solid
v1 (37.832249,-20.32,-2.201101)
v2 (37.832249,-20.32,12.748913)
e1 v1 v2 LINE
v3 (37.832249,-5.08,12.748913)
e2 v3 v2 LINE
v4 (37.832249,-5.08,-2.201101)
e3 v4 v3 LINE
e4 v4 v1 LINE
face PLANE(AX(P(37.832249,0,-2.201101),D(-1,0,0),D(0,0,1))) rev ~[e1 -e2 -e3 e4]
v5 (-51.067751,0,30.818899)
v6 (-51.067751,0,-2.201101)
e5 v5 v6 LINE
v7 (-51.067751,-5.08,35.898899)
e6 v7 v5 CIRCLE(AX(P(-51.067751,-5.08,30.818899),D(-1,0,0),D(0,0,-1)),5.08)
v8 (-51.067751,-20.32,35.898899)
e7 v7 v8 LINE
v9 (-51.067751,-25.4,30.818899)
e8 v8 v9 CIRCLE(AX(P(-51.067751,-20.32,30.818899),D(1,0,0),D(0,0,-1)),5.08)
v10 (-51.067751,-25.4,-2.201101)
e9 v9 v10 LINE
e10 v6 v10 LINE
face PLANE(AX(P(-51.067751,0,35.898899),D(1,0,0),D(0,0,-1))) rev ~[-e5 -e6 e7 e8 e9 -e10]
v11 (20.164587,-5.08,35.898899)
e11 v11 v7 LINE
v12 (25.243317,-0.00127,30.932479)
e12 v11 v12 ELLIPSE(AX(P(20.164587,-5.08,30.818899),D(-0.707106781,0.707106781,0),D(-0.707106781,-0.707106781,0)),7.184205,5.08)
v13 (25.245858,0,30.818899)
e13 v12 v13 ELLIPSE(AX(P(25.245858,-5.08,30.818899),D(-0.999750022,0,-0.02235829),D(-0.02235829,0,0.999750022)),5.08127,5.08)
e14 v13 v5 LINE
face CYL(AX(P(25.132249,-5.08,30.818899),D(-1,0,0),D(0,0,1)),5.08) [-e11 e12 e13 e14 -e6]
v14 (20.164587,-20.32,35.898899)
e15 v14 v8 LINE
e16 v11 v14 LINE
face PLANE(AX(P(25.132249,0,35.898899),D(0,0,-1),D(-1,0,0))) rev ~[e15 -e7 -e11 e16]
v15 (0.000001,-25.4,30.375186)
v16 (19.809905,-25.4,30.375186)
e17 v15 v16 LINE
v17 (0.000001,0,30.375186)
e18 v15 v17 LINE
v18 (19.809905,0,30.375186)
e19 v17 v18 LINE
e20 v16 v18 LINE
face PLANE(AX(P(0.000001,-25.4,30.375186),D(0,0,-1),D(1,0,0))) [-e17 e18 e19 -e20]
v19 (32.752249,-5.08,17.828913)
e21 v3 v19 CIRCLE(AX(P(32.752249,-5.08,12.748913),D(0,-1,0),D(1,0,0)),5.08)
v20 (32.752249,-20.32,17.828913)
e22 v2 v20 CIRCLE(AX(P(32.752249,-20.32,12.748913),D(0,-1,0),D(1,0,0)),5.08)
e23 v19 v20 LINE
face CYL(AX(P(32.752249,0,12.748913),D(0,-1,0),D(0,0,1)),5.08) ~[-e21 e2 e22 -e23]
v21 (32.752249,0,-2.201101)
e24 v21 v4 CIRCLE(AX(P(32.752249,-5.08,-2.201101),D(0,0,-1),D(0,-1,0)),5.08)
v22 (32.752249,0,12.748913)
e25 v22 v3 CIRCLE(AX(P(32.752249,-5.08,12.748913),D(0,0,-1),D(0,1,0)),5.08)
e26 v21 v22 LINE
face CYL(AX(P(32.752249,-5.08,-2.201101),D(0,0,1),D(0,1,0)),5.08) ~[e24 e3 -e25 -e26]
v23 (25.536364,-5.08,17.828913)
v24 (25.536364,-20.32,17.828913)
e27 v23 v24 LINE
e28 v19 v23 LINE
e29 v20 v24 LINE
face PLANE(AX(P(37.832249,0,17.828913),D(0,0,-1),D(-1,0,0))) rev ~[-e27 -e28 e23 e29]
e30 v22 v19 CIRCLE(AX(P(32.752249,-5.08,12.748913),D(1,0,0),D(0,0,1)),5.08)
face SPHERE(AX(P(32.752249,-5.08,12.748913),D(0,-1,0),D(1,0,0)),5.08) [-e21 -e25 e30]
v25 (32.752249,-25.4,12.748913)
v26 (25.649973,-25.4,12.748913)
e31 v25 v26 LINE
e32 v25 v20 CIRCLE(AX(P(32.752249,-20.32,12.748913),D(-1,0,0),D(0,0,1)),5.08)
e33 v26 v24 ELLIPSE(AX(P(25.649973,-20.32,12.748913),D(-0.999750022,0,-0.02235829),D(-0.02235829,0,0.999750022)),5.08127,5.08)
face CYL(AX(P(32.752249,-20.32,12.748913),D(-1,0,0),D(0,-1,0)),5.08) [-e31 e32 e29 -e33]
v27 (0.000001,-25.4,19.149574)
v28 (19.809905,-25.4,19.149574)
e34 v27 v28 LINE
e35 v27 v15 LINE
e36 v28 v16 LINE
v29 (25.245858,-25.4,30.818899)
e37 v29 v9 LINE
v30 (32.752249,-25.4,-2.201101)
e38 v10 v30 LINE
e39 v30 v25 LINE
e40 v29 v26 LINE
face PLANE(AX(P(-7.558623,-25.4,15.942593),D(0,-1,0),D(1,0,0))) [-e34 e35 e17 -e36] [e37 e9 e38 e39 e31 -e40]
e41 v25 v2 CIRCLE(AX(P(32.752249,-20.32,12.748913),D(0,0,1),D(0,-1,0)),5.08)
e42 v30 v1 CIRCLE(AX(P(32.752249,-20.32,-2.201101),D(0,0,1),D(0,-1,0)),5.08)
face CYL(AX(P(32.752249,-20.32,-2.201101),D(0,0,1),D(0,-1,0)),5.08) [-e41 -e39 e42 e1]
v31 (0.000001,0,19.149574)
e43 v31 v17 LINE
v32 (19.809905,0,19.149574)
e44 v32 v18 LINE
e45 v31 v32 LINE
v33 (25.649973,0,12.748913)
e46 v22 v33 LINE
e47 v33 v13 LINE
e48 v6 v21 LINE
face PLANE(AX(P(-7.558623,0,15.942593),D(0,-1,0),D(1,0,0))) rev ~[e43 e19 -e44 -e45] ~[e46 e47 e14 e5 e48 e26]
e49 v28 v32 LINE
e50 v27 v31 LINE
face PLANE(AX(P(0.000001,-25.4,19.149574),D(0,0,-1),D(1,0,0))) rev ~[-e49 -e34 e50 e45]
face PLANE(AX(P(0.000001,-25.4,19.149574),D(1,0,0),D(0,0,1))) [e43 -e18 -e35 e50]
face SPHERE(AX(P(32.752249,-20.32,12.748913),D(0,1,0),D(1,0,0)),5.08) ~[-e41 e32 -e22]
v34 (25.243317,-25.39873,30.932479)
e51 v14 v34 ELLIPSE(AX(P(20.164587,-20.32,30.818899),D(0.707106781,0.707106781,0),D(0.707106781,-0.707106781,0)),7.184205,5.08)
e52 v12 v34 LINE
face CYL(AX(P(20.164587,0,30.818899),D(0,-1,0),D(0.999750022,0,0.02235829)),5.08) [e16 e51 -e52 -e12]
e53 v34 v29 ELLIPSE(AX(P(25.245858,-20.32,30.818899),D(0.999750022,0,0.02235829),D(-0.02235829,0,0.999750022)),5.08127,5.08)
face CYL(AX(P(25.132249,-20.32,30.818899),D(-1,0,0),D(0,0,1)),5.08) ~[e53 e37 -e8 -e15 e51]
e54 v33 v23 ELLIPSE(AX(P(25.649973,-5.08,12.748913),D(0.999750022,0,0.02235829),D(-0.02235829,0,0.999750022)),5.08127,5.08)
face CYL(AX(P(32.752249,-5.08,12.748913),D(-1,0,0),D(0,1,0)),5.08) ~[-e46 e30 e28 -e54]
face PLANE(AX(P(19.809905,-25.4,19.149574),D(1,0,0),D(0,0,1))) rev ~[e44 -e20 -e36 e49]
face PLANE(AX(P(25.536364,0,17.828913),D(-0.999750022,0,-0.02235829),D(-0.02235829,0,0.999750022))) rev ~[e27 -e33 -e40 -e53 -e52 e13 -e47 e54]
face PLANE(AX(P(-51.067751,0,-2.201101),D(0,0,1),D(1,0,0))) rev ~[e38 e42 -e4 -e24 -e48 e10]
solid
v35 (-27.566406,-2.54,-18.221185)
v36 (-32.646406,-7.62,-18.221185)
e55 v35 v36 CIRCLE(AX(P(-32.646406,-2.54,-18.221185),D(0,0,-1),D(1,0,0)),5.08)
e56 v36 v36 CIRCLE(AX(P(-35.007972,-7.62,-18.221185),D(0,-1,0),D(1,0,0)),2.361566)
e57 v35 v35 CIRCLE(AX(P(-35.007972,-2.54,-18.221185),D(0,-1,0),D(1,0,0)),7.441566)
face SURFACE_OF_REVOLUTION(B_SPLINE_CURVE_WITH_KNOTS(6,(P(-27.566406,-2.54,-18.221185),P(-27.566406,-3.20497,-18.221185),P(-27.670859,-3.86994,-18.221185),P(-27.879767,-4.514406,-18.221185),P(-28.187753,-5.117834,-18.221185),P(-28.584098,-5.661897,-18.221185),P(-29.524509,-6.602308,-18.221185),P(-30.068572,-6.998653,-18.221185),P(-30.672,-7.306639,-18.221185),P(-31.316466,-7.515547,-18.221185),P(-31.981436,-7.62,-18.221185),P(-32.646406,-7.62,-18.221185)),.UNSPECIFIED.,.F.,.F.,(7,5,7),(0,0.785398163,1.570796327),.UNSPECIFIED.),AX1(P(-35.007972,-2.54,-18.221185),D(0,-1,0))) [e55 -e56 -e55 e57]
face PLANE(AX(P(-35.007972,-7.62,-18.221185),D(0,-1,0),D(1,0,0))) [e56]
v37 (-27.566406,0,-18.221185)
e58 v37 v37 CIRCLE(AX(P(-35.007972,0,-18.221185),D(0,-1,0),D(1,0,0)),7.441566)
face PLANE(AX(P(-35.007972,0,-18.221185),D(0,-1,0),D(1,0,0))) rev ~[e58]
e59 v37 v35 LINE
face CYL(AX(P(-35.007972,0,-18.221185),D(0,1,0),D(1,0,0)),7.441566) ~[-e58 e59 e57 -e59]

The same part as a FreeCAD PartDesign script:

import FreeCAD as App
import Part
import Sketcher
from FreeCAD import Vector
Q = App.Units.Quantity


def edges_at(feature, points):
    """Names of the edges that pass closest to the given points."""
    edges = feature.Shape.Edges
    near = lambda p: min(range(len(edges)), key=lambda i: edges[i].distToShape(Part.Vertex(*p))[0])
    return sorted({f"Edge{near(p) + 1}" for p in points})


def add_polygon(sketch, points):
    """Adds a closed chain of lines whose ends are joined by coincident constraints."""
    first, n = sketch.GeometryCount, len(points)
    for a, b in zip(points, points[1:] + points[:1]):
        sketch.addGeometry(Part.LineSegment(App.Vector(*a, 0), App.Vector(*b, 0)), False)
    for i in range(n):
        sketch.addConstraint(Sketcher.Constraint("Coincident", first + i, 2, first + (i + 1) % n, 1))

doc = App.newDocument("Part")
body = doc.addObject("PartDesign::Body", "Body")

# Sketch on XZ plane
sketch1 = body.newObject("Sketcher::SketchObject", "Sketch")
sketch1.AttachmentSupport = (doc.getObject("XZ_Plane"), [""])
sketch1.MapMode = "FlatFace"
add_polygon(sketch1, [(26, 18), (25, 36), (-51, 36), (-51, -2), (38, -2), (38, 18)])  # lines 0-5
sketch1.addConstraint([
    Sketcher.Constraint("Horizontal", 1),
    Sketcher.Constraint("Vertical", 2),
    Sketcher.Constraint("Horizontal", 3),
    Sketcher.Constraint("Vertical", 4),
    Sketcher.Constraint("Horizontal", 5),
    Sketcher.Constraint("DistanceX", 1, 2, 1, 1, Q("3 in")),
    Sketcher.Constraint("DistanceX", 3, 1, 3, 2, Q("3.5 in")),
    Sketcher.Constraint("DistanceY", 2, 2, 2, 1, Q("1.5 in")),
    Sketcher.Constraint("DistanceY", -1, 1, 0, 2, Q("35.898899 mm")),
    Sketcher.Constraint("DistanceX", 5, 2, 5, 1, Q("12.295885 mm")),
    Sketcher.Constraint("DistanceY", 4, 1, 4, 2, Q("20.030014 mm")),
    Sketcher.Constraint("DistanceX", -1, 1, 0, 2, Q("25.132249 mm")),
])
pad1 = body.newObject("PartDesign::Pad", "Pad")
pad1.Profile = sketch1
pad1.Length = Q("1 in")

# Sketch on XZ plane
sketch2 = body.newObject("Sketcher::SketchObject", "Sketch001")
sketch2.AttachmentSupport = (doc.getObject("XZ_Plane"), [""])
sketch2.MapMode = "FlatFace"
sketch2.AttachmentOffset = App.Placement(Vector(0, 0, 1 * 25.4), App.Rotation())
add_polygon(sketch2, [(0, 30), (0, 19), (20, 19), (20, 30)])  # lines 0-3
sketch2.addConstraint([
    Sketcher.Constraint("Vertical", 0),
    Sketcher.Constraint("Horizontal", 1),
    Sketcher.Constraint("Vertical", 2),
    Sketcher.Constraint("Horizontal", 3),
    Sketcher.Constraint("PointOnObject", 0, 2, -2),
    Sketcher.Constraint("DistanceY", 0, 2, 0, 1, Q("11.225612 mm")),
    Sketcher.Constraint("DistanceX", 1, 1, 1, 2, Q("19.809905 mm")),
    Sketcher.Constraint("DistanceY", -1, 1, 0, 2, Q("19.149574 mm")),
])
pocket1 = body.newObject("PartDesign::Pocket", "Pocket")
pocket1.Profile = sketch2
pocket1.Length = Q("1 in")
doc.recompute()

fillet = body.newObject("PartDesign::Fillet", "Fillet")
fillet.Base = (pocket1, edges_at(pocket1, [
    (37.832, -12.7, 17.829),
    (-12.968, 0, 35.899),
    (25.132, -12.7, 35.899),
    (-12.968, -25.4, 35.899),
]))
fillet.Radius = Q("0.2 in")
doc.recompute()

fillet2 = body.newObject("PartDesign::Fillet", "Fillet001")
fillet2.Base = (fillet, edges_at(fillet, [(37.832, 0, 5.274), (37.832, -25.4, 5.274)]))
fillet2.Radius = Q("0.2 in")
body2 = doc.addObject("PartDesign::Body", "Body001")

# Sketch on XZ plane
sketch3 = body2.newObject("Sketcher::SketchObject", "Sketch002")
sketch3.AttachmentSupport = (doc.getObject("XZ_Plane001"), [""])
sketch3.MapMode = "FlatFace"
sketch3.addGeometry(Part.Circle(Vector(-35, -18, 0), Vector(0, 0, 1), 7), False)
sketch3.addConstraint([
    Sketcher.Constraint("Diameter", 0, Q("14.883132 mm")),
    Sketcher.Constraint("DistanceX", 0, 3, -1, 1, Q("35.007972 mm")),
    Sketcher.Constraint("DistanceY", 0, 3, -1, 1, Q("18.221185 mm")),
])
pad2 = body2.newObject("PartDesign::Pad", "Pad001")
pad2.Profile = sketch3
pad2.Length = Q("0.3 in")
doc.recompute()

fillet3 = body2.newObject("PartDesign::Fillet", "Fillet002")
fillet3.Base = (pad2, edges_at(pad2, [(-42.45, -7.62, -18.221)]))
fillet3.Radius = Q("0.2 in")

doc.recompute()
